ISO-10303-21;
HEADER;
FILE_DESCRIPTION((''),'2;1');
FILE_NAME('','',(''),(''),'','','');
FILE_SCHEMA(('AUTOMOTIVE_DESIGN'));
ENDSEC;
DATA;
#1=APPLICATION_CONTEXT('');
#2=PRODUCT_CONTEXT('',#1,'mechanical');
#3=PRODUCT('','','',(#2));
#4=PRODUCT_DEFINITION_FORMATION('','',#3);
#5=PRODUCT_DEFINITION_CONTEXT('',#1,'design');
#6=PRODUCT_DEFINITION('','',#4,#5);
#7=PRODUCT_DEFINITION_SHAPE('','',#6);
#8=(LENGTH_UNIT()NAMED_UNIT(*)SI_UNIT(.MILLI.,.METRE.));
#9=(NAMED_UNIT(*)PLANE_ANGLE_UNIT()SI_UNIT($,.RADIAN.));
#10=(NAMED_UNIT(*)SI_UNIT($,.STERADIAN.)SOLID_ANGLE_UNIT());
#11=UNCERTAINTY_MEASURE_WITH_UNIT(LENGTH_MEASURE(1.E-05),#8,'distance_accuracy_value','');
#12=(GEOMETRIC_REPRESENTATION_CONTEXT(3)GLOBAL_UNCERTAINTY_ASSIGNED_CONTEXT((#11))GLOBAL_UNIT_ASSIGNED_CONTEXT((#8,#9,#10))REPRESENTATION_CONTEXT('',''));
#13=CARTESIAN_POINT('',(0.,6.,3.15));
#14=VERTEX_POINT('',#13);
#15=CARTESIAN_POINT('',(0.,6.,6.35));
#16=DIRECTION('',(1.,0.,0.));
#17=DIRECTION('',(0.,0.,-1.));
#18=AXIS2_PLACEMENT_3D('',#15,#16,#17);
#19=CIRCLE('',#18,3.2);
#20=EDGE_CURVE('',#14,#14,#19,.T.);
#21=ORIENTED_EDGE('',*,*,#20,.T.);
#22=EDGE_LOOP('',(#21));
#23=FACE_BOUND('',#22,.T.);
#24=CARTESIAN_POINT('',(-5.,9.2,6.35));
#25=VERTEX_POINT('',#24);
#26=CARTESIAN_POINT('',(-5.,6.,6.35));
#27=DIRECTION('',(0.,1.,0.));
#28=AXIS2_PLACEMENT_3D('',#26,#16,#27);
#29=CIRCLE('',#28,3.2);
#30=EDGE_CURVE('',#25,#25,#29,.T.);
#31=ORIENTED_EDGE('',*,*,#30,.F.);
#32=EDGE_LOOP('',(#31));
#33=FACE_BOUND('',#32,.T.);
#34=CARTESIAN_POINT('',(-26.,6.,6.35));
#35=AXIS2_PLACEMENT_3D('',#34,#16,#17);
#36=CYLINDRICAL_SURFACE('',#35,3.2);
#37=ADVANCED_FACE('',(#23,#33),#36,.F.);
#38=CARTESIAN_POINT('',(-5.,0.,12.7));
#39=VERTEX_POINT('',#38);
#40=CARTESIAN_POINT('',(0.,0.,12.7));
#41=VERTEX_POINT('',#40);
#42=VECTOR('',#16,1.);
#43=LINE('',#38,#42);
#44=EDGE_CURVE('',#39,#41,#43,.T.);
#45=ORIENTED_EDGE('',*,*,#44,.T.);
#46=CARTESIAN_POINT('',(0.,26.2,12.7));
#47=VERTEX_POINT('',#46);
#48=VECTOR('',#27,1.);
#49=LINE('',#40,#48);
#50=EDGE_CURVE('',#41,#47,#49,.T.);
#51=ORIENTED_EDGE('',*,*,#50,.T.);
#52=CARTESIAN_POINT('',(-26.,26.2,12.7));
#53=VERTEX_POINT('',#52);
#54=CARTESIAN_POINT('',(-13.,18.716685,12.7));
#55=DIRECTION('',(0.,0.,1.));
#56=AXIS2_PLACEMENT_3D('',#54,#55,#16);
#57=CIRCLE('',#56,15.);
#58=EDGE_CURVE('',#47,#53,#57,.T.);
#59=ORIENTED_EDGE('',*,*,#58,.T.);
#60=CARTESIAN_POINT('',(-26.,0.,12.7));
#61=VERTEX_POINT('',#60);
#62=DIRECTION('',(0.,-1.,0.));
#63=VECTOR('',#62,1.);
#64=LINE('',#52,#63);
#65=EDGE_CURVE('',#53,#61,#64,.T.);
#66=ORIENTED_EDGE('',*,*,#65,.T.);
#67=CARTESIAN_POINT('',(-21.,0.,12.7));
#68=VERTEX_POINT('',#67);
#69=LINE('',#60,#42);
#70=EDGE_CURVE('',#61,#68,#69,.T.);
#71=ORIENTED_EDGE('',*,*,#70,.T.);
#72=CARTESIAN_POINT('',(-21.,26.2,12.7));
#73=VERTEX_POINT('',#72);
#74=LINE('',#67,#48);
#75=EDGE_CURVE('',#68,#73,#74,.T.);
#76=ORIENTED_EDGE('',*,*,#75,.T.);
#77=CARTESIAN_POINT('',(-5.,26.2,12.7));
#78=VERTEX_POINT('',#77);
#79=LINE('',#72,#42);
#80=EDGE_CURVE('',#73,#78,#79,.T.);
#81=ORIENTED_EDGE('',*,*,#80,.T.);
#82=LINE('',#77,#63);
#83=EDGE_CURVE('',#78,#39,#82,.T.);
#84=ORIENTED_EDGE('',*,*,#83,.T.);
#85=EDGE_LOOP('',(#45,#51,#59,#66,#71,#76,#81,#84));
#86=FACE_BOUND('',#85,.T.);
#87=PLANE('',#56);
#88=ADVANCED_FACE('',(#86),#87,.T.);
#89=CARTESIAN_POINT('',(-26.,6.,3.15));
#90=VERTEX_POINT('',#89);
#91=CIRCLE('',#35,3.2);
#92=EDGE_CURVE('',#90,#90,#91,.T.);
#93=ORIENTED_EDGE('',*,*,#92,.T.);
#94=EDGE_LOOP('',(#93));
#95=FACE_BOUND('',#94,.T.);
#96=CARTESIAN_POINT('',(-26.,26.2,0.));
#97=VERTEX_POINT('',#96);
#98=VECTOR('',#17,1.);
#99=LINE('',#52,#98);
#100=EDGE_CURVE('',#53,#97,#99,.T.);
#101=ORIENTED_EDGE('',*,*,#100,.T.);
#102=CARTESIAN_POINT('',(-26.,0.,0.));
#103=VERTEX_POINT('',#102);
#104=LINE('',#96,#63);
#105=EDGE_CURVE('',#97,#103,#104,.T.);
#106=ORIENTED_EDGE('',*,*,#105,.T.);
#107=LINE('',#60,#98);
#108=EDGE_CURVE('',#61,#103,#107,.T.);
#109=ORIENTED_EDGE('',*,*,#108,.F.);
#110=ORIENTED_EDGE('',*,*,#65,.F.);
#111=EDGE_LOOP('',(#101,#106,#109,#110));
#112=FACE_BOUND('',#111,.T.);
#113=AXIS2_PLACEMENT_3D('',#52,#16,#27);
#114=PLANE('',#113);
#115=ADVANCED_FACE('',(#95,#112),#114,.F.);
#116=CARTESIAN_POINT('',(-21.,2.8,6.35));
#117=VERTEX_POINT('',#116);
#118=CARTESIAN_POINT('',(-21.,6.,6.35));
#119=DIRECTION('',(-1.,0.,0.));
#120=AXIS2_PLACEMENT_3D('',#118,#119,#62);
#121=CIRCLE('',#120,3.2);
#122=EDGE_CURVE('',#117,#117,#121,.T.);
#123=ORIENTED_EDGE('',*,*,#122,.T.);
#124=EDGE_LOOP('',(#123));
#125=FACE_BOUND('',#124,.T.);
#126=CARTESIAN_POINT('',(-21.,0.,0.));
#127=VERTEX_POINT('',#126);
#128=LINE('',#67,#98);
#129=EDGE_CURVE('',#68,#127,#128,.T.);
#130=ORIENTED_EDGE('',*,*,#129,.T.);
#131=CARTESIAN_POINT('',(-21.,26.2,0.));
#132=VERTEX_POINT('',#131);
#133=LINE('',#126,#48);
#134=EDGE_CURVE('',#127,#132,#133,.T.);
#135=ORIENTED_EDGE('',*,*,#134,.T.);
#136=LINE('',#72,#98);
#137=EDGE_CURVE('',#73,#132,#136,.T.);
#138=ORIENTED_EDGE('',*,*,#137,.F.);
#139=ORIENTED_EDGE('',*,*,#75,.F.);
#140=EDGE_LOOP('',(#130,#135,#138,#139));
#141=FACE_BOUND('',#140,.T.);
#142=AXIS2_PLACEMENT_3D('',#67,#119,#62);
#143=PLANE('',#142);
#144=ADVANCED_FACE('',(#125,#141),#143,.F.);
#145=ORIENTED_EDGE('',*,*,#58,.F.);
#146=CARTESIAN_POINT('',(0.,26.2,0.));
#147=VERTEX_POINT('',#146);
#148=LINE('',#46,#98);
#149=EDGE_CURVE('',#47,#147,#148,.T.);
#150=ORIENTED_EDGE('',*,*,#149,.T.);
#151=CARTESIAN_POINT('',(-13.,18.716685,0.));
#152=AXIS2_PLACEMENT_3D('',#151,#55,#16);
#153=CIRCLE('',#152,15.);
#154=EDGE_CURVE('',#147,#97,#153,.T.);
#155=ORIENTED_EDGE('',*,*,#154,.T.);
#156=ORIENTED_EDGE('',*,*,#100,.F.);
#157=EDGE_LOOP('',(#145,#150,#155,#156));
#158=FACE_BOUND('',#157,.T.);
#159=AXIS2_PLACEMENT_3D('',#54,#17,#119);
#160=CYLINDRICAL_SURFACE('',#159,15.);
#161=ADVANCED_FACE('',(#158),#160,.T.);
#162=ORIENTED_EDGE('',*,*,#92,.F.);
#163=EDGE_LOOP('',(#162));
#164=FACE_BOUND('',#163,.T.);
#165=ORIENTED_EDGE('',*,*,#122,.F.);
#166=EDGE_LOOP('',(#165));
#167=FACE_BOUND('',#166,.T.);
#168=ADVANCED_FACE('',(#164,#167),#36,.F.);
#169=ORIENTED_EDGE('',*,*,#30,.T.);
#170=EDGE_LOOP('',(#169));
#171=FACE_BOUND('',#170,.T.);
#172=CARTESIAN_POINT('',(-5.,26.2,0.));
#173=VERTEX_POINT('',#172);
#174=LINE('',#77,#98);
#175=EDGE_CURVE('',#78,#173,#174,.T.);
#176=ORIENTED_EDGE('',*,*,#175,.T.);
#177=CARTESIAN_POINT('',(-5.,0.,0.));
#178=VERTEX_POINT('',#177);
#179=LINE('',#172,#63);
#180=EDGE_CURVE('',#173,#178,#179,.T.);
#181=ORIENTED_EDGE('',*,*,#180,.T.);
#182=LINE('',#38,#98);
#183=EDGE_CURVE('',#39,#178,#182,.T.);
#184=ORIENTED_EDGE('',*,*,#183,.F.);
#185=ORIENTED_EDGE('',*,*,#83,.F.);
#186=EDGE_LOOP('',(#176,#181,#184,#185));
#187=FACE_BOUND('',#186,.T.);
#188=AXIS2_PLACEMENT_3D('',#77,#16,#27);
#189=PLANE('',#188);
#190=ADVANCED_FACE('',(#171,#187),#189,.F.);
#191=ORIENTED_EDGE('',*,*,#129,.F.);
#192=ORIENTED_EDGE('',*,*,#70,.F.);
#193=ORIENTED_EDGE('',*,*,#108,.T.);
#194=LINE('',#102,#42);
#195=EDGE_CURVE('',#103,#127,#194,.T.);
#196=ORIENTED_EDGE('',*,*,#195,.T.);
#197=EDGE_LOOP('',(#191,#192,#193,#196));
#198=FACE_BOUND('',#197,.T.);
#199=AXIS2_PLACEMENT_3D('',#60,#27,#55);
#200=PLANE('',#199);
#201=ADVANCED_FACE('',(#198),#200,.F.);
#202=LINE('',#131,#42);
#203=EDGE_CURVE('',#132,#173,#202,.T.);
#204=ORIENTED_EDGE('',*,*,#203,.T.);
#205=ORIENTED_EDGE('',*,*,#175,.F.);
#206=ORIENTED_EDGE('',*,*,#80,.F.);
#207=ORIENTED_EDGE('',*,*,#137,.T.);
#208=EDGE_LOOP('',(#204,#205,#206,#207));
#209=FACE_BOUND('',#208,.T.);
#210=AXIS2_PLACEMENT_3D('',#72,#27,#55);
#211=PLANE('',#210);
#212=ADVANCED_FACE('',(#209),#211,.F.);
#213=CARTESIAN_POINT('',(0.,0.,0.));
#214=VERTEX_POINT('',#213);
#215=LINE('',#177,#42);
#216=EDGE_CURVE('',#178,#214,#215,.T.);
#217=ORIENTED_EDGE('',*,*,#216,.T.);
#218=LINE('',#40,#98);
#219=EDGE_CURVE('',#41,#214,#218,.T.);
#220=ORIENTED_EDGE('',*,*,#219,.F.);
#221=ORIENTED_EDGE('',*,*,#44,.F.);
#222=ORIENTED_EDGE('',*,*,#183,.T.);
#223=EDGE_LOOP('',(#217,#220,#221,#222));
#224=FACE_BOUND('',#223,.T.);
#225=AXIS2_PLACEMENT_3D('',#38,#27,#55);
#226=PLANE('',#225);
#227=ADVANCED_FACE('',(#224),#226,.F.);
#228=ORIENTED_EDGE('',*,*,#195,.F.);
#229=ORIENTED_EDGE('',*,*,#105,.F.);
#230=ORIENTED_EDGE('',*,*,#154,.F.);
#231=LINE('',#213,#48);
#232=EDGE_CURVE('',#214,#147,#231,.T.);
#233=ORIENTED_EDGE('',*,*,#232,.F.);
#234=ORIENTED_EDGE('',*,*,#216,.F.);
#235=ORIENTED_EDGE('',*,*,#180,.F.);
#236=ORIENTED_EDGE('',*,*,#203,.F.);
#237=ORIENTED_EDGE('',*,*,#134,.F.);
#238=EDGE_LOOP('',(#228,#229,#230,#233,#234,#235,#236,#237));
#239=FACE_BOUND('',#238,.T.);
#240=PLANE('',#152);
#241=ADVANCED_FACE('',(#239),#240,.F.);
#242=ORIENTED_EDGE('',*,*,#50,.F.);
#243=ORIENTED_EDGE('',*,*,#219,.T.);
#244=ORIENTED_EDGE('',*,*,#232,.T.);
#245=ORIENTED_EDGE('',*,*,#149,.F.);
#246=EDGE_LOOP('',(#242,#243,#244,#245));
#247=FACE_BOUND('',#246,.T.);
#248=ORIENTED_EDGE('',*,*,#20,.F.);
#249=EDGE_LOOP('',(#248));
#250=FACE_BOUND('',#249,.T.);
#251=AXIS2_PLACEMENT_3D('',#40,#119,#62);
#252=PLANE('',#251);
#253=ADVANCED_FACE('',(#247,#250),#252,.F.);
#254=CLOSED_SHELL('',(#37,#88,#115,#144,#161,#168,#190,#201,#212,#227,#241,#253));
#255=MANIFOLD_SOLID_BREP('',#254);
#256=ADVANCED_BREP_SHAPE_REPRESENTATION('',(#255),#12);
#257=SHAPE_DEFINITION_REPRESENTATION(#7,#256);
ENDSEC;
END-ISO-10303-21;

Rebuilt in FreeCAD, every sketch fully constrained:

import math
import FreeCAD as App
import Part
import Sketcher
from FreeCAD import Vector
Q = App.Units.Quantity

doc = App.newDocument("Part")
params = doc.addObject("Spreadsheet::Sheet", "Params")
for row, (alias, value) in enumerate([
    ("sketch1_radius", "15 mm"),
    ("sketch1_width", "5 mm"),
    ("sketch1_width2", "16 mm"),
    ("sketch1_height", "26.2 mm"),
    ("pad1_length", "12.7 mm"),
    ("sketch2_diameter", "6.4 mm"),
], start=1):
    params.set(f"A{row}", alias)
    params.set(f"B{row}", "=" + value)
    params.setAlias(f"B{row}", alias)

body = doc.addObject("PartDesign::Body", "Body")

# Sketch on XY plane
sketch1 = doc.addObject("Sketcher::SketchObject", "Sketch")
body.addObject(sketch1)
sketch1.AttachmentSupport = (doc.XY_Plane, [""])
sketch1.MapMode = "FlatFace"
sketch1.addGeometry([
    Part.LineSegment(Vector(0, 0, 0), Vector(0, 26, 0)),  # 0
    Part.ArcOfCircle(Part.Circle(Vector(-13, 19, 0), Vector(0, 0, 1), 15), math.radians(30), math.radians(150)),  # 1
    Part.LineSegment(Vector(-26, 26, 0), Vector(-26, 0, 0)),  # 2
    Part.LineSegment(Vector(-26, 0, 0), Vector(-21, 0, 0)),  # 3
    Part.LineSegment(Vector(-21, 0, 0), Vector(-21, 26, 0)),  # 4
    Part.LineSegment(Vector(-21, 26, 0), Vector(-5, 26, 0)),  # 5
    Part.LineSegment(Vector(-5, 26, 0), Vector(-5, 0, 0)),  # 6
    Part.LineSegment(Vector(-5, 0, 0), Vector(0, 0, 0)),  # 7
], False)
sketch1.addConstraint([
    Sketcher.Constraint("Coincident", 0, 2, 1, 1),
    Sketcher.Constraint("Coincident", 1, 2, 2, 1),
    Sketcher.Constraint("Coincident", 2, 2, 3, 1),
    Sketcher.Constraint("Coincident", 3, 2, 4, 1),
    Sketcher.Constraint("Coincident", 4, 2, 5, 1),
    Sketcher.Constraint("Coincident", 5, 2, 6, 1),
    Sketcher.Constraint("Coincident", 6, 2, 7, 1),
    Sketcher.Constraint("Coincident", 7, 2, 0, 1),
    Sketcher.Constraint("Vertical", 0),
    Sketcher.Constraint("Vertical", 2),
    Sketcher.Constraint("Horizontal", 3),
    Sketcher.Constraint("Vertical", 4),
    Sketcher.Constraint("Horizontal", 5),
    Sketcher.Constraint("Vertical", 6),
    Sketcher.Constraint("Horizontal", 7),
    Sketcher.Constraint("Coincident", 7, 2, -1, 1),
    Sketcher.Constraint("PointOnObject", 2, 2, -1),
    Sketcher.Constraint("Horizontal", 0, 2, 1, 2),
    Sketcher.Constraint("Horizontal", 1, 2, 4, 2),
    Sketcher.Constraint("Equal", 3, 7),
    Sketcher.Constraint("Radius", 1, Q("15 mm")),
    Sketcher.Constraint("DistanceX", 3, 1, 3, 2, Q("5 mm")),
    Sketcher.Constraint("DistanceX", 5, 1, 5, 2, Q("16 mm")),
    Sketcher.Constraint("DistanceY", 0, 1, 0, 2, Q("26.2 mm")),
])
sketch1.setExpression("Constraints[20]", "Params.sketch1_radius")
sketch1.setExpression("Constraints[21]", "Params.sketch1_width")
sketch1.setExpression("Constraints[22]", "Params.sketch1_width2")
sketch1.setExpression("Constraints[23]", "Params.sketch1_height")
pad1 = doc.addObject("PartDesign::Pad", "Pad")
body.addObject(pad1)
pad1.Profile = sketch1
pad1.setExpression("Length", "Params.pad1_length")

# Sketch on YZ plane
sketch2 = doc.addObject("Sketcher::SketchObject", "Sketch001")
body.addObject(sketch2)
sketch2.AttachmentSupport = (doc.YZ_Plane, [""])
sketch2.MapMode = "FlatFace"
sketch2.addGeometry(Part.Circle(Vector(6, 6.3, 0), Vector(0, 0, 1), 3.2), False)
sketch2.addConstraint([
    Sketcher.Constraint("Diameter", 0, Q("6.4 mm")),
    Sketcher.Constraint("DistanceX", -1, 1, 0, 3, Q("6 mm")),
    Sketcher.Constraint("DistanceY", -1, 1, 0, 3, Q("6.35 mm")),
])
sketch2.setExpression("Constraints[0]", "Params.sketch2_diameter")
pocket1 = doc.addObject("PartDesign::Pocket", "Pocket")
body.addObject(pocket1)
pocket1.Profile = sketch2
pocket1.Type = "ThroughAll"

doc.recompute()
